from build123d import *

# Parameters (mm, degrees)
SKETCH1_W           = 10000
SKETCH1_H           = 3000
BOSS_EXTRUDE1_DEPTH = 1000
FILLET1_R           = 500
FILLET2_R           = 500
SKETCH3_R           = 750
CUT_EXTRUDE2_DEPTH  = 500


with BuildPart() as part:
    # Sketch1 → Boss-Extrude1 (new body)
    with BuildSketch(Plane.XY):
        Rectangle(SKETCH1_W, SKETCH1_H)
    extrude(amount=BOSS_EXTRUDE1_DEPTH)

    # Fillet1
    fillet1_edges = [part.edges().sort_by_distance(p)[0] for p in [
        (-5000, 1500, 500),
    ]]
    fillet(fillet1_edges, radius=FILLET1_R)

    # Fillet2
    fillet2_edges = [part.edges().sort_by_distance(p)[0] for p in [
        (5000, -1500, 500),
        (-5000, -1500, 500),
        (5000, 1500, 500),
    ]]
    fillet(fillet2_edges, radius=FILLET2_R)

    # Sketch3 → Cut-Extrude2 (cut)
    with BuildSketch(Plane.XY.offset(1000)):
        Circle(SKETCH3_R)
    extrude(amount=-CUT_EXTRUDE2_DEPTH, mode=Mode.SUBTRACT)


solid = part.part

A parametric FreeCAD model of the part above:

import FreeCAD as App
import Part
import Sketcher
from FreeCAD import Vector


def edges_at(feature, points):
    """Names of the edges that pass closest to the given points."""
    edges = feature.Shape.Edges
    near = lambda p: min(range(len(edges)), key=lambda i: edges[i].distToShape(Part.Vertex(*p))[0])
    return sorted({f"Edge{near(p) + 1}" for p in points})

doc = App.newDocument("Part")
body = doc.addObject("PartDesign::Body", "Body")

# Sketch on XY plane
sketch1 = body.newObject("Sketcher::SketchObject", "Sketch")
sketch1.AttachmentSupport = (doc.getObject("XY_Plane"), [""])
sketch1.MapMode = "FlatFace"
sketch1.addGeometry([
    Part.LineSegment(Vector(-5000, 1500, 0), Vector(-5000, -1500, 0)),
    Part.LineSegment(Vector(-5000, -1500, 0), Vector(5000, -1500, 0)),
    Part.LineSegment(Vector(5000, -1500, 0), Vector(5000, 1500, 0)),
    Part.LineSegment(Vector(5000, 1500, 0), Vector(-5000, 1500, 0)),
], False)
sketch1.addConstraint([
    Sketcher.Constraint("Coincident", 0, 2, 1, 1),
    Sketcher.Constraint("Coincident", 1, 2, 2, 1),
    Sketcher.Constraint("Coincident", 2, 2, 3, 1),
    Sketcher.Constraint("Coincident", 3, 2, 0, 1),
    Sketcher.Constraint("Vertical", 0),
    Sketcher.Constraint("Horizontal", 1),
    Sketcher.Constraint("Vertical", 2),
    Sketcher.Constraint("Horizontal", 3),
    Sketcher.Constraint("Symmetric", 0, 2, 2, 2, -1, 1),
    Sketcher.Constraint("DistanceX", 1, 1, 1, 2, 10000.0),
    Sketcher.Constraint("DistanceY", 0, 2, 0, 1, 3000.0),
])
pad1 = body.newObject("PartDesign::Pad", "Pad")
pad1.Profile = sketch1
pad1.Length = 1000
doc.recompute()

fillet = body.newObject("PartDesign::Fillet", "Fillet")
fillet.Base = (pad1, edges_at(pad1, [(-5000, 1500, 500)]))
fillet.Radius = 500
doc.recompute()

fillet2 = body.newObject("PartDesign::Fillet", "Fillet001")
fillet2.Base = (fillet, edges_at(fillet, [(5000, -1500, 500), (-5000, -1500, 500), (5000, 1500, 500)]))
fillet2.Radius = 500

# Sketch on XY plane
sketch2 = body.newObject("Sketcher::SketchObject", "Sketch001")
sketch2.AttachmentSupport = (doc.getObject("XY_Plane"), [""])
sketch2.MapMode = "FlatFace"
sketch2.AttachmentOffset = App.Placement(Vector(0, 0, 1000), App.Rotation())
sketch2.addGeometry(Part.Circle(Vector(0, 0, 0), Vector(0, 0, 1), 750), False)
sketch2.addConstraint([
    Sketcher.Constraint("Coincident", 0, 3, -1, 1),
    Sketcher.Constraint("Diameter", 0, 1500.0),
])
pocket1 = body.newObject("PartDesign::Pocket", "Pocket")
pocket1.Profile = sketch2
pocket1.Length = 500

doc.recompute()
